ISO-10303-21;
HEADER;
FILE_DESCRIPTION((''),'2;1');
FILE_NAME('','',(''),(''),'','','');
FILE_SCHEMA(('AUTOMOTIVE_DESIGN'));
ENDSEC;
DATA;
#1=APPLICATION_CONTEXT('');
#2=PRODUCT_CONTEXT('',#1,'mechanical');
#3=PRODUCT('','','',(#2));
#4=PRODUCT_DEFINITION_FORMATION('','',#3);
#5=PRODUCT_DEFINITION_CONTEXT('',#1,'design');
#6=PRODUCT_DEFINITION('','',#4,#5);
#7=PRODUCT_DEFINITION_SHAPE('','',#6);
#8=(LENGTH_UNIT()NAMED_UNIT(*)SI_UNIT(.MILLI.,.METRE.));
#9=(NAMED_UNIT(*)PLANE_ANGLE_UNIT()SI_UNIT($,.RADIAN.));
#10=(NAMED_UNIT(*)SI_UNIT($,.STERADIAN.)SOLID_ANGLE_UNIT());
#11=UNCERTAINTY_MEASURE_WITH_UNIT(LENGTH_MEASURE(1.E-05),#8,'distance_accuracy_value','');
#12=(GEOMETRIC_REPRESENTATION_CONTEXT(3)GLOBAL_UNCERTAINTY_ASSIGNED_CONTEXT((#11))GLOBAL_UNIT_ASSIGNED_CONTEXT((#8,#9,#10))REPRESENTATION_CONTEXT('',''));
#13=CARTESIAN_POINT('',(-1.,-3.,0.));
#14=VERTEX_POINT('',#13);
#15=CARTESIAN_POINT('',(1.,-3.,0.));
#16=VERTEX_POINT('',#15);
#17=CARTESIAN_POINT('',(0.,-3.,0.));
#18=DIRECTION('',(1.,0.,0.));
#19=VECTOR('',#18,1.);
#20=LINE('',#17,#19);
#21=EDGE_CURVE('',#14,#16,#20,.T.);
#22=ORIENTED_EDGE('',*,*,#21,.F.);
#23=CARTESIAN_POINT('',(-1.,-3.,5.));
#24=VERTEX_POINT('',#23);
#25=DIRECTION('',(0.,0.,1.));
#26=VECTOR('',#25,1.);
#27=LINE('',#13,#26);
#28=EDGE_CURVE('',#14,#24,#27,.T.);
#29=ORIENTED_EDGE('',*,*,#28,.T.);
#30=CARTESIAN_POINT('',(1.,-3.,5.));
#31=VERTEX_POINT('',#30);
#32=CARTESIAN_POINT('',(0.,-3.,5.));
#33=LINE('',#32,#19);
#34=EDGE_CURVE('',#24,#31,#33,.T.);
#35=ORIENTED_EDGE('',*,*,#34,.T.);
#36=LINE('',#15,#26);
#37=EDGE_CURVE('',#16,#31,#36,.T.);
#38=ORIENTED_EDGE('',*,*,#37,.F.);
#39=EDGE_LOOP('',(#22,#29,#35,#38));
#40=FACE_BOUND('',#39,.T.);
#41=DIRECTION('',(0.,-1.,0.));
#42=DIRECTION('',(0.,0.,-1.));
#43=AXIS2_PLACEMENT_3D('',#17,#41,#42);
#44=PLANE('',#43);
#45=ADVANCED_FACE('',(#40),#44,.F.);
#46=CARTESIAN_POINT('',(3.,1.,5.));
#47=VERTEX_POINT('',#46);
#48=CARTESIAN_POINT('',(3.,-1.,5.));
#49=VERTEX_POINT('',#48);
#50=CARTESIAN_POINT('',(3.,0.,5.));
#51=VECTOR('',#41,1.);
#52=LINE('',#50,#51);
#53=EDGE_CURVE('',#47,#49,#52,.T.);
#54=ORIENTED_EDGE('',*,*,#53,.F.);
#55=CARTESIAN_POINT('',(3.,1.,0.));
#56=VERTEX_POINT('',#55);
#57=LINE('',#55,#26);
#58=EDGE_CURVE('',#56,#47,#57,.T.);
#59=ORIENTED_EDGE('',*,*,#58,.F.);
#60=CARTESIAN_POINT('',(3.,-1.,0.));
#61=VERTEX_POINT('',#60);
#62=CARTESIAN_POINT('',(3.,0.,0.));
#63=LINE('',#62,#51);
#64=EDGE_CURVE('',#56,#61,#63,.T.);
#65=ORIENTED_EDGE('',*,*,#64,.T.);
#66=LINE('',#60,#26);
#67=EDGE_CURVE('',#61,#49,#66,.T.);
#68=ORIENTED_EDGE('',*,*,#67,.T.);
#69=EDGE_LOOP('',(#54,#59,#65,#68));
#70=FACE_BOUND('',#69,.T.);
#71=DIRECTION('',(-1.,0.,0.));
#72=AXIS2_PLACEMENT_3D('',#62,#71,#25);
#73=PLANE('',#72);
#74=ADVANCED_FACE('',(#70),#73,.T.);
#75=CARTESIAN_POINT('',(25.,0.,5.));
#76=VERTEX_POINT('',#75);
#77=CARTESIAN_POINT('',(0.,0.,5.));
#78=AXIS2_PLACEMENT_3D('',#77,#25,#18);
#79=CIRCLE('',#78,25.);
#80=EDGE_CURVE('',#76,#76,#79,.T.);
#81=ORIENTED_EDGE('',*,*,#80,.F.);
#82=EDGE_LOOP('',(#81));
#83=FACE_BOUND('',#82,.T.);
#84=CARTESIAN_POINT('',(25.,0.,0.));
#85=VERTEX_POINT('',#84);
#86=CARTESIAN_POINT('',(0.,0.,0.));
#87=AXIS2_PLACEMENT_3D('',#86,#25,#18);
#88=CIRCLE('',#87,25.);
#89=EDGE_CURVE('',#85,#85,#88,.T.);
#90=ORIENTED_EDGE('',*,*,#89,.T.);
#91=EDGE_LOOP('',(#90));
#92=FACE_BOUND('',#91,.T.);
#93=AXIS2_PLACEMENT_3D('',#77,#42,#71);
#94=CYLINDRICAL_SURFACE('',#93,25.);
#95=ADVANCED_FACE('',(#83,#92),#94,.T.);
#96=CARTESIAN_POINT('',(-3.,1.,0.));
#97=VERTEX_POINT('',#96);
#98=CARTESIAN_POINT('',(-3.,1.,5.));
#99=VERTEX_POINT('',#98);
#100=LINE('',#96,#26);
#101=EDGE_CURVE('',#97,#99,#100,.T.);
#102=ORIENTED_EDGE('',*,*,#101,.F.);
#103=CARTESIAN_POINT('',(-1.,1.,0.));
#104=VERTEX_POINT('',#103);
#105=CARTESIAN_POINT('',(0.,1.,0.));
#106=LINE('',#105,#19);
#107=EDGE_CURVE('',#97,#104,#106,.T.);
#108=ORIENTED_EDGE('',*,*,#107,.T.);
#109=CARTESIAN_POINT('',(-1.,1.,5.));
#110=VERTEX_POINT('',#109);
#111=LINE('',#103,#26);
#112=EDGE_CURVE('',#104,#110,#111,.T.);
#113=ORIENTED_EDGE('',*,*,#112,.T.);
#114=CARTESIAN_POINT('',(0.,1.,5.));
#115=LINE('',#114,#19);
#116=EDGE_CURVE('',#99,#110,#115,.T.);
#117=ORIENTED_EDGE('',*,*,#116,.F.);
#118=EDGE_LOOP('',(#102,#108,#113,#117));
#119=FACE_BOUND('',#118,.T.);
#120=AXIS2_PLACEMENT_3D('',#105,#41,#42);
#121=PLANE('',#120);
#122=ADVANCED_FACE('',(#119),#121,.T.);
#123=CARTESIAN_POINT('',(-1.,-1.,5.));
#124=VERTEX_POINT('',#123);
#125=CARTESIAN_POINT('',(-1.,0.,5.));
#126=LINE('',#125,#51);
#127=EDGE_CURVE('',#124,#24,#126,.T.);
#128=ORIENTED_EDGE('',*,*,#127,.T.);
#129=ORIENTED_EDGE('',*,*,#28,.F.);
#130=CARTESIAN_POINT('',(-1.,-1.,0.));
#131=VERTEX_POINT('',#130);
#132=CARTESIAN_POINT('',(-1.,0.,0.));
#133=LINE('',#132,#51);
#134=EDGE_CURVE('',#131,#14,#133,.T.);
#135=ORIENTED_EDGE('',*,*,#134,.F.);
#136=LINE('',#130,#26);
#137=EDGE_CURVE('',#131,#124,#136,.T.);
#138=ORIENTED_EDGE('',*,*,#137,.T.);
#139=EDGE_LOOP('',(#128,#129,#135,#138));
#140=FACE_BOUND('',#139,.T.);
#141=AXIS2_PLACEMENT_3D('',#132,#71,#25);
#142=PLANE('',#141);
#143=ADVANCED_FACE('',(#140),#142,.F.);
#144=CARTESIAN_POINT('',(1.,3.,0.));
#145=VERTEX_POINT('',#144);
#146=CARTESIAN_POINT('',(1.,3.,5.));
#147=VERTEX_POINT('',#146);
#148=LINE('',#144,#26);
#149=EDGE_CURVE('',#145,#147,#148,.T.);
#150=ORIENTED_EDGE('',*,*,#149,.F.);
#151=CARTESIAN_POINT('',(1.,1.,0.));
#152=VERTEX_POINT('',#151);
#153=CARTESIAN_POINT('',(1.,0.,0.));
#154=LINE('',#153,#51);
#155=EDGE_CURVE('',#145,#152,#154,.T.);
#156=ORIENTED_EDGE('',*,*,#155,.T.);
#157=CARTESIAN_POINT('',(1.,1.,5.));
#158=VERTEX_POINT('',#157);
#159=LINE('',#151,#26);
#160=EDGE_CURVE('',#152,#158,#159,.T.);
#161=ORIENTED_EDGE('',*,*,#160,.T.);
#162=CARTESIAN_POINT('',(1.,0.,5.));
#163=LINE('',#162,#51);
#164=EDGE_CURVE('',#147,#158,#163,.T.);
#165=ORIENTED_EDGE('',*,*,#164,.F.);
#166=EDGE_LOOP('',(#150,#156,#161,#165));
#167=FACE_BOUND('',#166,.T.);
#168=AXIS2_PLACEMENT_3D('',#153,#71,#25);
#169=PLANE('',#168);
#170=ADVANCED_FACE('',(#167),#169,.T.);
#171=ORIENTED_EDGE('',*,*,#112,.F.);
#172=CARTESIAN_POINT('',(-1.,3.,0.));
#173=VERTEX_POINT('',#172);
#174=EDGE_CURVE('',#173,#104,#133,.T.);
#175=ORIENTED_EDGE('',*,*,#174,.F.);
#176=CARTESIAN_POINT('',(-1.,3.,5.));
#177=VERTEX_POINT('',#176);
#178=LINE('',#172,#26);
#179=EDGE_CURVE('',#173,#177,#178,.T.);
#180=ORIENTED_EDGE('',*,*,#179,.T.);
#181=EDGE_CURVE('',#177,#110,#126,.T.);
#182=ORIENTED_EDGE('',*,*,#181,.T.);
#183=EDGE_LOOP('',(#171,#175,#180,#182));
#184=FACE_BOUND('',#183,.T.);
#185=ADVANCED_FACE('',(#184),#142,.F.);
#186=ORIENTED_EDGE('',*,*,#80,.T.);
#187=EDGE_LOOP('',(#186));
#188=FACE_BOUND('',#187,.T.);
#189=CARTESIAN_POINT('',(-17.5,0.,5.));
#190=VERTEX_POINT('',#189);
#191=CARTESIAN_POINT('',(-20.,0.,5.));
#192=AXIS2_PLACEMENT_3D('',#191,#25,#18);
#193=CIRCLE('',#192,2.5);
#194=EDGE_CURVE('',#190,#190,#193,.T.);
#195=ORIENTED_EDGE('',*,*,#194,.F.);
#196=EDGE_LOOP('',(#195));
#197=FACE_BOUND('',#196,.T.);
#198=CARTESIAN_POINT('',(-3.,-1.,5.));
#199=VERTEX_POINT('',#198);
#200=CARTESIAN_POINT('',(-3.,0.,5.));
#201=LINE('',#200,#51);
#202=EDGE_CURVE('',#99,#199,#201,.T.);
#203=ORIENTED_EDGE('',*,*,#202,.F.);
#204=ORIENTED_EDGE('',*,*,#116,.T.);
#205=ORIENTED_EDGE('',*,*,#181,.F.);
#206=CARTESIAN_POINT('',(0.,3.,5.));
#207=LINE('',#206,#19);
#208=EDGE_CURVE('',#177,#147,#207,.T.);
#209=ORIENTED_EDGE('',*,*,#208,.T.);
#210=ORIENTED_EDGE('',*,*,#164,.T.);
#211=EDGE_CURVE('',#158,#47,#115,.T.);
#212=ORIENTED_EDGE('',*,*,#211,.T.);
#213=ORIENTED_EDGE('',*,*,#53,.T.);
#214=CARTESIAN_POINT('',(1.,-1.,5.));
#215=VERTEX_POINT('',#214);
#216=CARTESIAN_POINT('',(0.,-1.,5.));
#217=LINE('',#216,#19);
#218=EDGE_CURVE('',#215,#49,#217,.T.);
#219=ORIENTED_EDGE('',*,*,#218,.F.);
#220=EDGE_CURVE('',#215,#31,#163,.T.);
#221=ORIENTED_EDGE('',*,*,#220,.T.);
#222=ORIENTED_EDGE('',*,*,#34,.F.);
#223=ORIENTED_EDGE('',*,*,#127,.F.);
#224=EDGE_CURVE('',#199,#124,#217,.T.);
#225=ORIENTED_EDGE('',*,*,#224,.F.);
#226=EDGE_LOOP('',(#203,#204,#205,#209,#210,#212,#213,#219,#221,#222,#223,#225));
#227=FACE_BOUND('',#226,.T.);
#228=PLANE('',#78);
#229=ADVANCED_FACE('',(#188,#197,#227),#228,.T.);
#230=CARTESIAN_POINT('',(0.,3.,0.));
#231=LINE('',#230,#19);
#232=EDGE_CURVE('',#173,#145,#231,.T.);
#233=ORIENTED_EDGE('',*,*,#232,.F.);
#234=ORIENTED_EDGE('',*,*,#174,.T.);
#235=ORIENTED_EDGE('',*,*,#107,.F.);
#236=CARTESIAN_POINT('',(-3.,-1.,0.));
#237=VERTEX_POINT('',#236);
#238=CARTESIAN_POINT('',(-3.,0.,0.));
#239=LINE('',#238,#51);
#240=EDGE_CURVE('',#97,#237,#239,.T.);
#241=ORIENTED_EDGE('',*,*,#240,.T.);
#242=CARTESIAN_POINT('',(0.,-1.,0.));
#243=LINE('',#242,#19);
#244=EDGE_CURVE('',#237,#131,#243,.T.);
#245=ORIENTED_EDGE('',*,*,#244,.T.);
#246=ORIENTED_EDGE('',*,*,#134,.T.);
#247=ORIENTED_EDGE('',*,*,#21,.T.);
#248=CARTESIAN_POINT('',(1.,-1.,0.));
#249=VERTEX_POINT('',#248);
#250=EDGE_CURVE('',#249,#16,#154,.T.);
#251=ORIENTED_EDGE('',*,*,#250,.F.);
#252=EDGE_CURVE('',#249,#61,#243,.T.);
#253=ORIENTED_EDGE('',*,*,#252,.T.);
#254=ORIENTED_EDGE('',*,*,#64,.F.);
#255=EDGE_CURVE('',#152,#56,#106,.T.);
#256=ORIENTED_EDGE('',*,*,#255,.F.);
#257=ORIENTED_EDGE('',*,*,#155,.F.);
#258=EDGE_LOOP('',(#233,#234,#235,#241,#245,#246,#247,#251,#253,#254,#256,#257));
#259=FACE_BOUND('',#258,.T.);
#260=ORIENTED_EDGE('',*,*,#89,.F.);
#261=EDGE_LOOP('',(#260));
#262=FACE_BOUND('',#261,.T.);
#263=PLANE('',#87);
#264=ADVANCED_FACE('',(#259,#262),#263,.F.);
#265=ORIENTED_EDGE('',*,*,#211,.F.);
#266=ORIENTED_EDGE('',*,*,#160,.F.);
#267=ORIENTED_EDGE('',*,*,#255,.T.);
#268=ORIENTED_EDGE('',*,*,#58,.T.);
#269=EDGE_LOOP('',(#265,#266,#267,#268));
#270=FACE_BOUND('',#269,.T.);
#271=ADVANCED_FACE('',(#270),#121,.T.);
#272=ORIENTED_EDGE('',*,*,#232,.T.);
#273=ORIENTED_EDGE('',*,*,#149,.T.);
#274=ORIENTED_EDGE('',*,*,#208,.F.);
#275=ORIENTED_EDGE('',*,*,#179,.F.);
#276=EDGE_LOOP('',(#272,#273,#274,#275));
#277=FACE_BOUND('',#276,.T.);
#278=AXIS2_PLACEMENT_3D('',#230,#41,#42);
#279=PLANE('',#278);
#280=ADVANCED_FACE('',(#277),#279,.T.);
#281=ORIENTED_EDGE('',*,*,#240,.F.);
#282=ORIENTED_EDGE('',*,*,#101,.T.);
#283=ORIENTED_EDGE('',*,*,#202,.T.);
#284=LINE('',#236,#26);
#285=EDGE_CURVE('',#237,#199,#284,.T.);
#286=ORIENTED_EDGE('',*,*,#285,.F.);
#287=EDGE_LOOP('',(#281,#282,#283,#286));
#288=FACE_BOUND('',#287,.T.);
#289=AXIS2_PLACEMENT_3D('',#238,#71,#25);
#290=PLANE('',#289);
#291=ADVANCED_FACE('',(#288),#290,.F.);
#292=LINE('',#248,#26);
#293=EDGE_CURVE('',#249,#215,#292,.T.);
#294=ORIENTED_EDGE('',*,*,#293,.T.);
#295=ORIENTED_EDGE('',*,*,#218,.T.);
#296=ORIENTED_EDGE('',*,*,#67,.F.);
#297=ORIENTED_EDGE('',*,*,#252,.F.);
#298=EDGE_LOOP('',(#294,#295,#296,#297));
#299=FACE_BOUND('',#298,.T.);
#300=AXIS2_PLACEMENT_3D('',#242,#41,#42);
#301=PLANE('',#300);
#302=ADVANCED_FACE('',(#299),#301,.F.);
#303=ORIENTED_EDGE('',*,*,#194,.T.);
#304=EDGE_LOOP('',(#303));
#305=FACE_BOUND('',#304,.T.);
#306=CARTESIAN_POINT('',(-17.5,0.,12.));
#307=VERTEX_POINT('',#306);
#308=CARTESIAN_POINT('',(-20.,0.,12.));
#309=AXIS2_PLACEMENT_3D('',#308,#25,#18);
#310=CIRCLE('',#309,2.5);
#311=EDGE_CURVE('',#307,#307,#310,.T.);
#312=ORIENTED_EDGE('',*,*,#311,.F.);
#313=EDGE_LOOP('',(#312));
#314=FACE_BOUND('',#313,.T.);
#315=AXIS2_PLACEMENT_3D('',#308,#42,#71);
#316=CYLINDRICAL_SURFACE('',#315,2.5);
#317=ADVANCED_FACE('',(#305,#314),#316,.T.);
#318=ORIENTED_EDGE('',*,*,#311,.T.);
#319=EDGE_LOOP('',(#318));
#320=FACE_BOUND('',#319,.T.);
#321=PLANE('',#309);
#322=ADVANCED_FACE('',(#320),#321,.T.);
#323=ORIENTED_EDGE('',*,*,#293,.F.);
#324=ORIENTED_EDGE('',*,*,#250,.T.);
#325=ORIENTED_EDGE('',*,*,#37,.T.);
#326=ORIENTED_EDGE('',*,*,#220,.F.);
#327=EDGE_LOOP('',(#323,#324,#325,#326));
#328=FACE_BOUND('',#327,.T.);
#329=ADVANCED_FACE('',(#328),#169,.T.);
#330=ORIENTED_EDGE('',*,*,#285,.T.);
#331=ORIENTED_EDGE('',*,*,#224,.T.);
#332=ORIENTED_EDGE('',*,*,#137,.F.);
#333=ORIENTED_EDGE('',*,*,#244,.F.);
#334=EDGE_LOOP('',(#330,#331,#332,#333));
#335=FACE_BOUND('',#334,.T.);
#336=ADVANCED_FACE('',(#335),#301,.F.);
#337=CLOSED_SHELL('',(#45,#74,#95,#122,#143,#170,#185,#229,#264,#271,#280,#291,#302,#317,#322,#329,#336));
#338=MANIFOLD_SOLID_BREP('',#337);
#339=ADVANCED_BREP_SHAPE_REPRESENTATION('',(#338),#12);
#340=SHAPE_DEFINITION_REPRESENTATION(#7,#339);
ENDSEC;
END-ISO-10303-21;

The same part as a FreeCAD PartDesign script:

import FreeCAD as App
import Part
import Sketcher
Q = App.Units.Quantity

doc = App.newDocument("Part")
body = doc.addObject("PartDesign::Body", "Body")

# Sketch on XY plane
sketch1 = body.newObject("Sketcher::SketchObject", "Sketch")
sketch1.AttachmentSupport = (doc.getObject("XY_Plane"), [""])
sketch1.MapMode = "FlatFace"
sketch1.addGeometry(Part.Circle(App.Vector(0, 0, 0), App.Vector(0, 0, 1), 25), False)
sketch1.addConstraint([
    Sketcher.Constraint("Coincident", 0, 3, -1, 1),
    Sketcher.Constraint("Diameter", 0, Q("50 mm")),
])
pad1 = body.newObject("PartDesign::Pad", "Pad")
pad1.Profile = sketch1
pad1.Length = 5

# Sketch on XY plane
sketch2 = body.newObject("Sketcher::SketchObject", "Sketch001")
sketch2.AttachmentSupport = (doc.getObject("XY_Plane"), [""])
sketch2.MapMode = "FlatFace"
sketch2.AttachmentOffset = App.Placement(App.Vector(0, 0, 5), App.Rotation())
sketch2.addGeometry(Part.Circle(App.Vector(-20, 0, 0), App.Vector(0, 0, 1), 2.5), False)
sketch2.addConstraint([
    Sketcher.Constraint("PointOnObject", 0, 3, -1),
    Sketcher.Constraint("Diameter", 0, Q("5 mm")),
    Sketcher.Constraint("DistanceX", 0, 3, -1, 1, Q("20 mm")),
])
pad2 = body.newObject("PartDesign::Pad", "Pad001")
pad2.Profile = sketch2
pad2.Length = 7

# Sketch on XY plane
sketch3 = body.newObject("Sketcher::SketchObject", "Sketch002")
sketch3.AttachmentSupport = (doc.getObject("XY_Plane"), [""])
sketch3.MapMode = "FlatFace"
sketch3.AttachmentOffset = App.Placement(App.Vector(0, 0, 5), App.Rotation())
sketch3.addGeometry([
    Part.LineSegment(App.Vector(-1, 3, 0), App.Vector(-1, 1, 0)),  # 0
    Part.LineSegment(App.Vector(-1, 1, 0), App.Vector(-3, 1, 0)),  # 1
    Part.LineSegment(App.Vector(-3, 1, 0), App.Vector(-3, -1, 0)),  # 2
    Part.LineSegment(App.Vector(-3, -1, 0), App.Vector(-1, -1, 0)),  # 3
    Part.LineSegment(App.Vector(-1, -1, 0), App.Vector(-1, -3, 0)),  # 4
    Part.LineSegment(App.Vector(-1, -3, 0), App.Vector(1, -3, 0)),  # 5
    Part.LineSegment(App.Vector(1, -3, 0), App.Vector(1, -1, 0)),  # 6
    Part.LineSegment(App.Vector(1, -1, 0), App.Vector(3, -1, 0)),  # 7
    Part.LineSegment(App.Vector(3, -1, 0), App.Vector(3, 1, 0)),  # 8
    Part.LineSegment(App.Vector(3, 1, 0), App.Vector(1, 1, 0)),  # 9
    Part.LineSegment(App.Vector(1, 1, 0), App.Vector(1, 3, 0)),  # 10
    Part.LineSegment(App.Vector(1, 3, 0), App.Vector(-1, 3, 0)),  # 11
], False)
sketch3.addConstraint([
    Sketcher.Constraint("Coincident", 0, 2, 1, 1),
    Sketcher.Constraint("Coincident", 1, 2, 2, 1),
    Sketcher.Constraint("Coincident", 2, 2, 3, 1),
    Sketcher.Constraint("Coincident", 3, 2, 4, 1),
    Sketcher.Constraint("Coincident", 4, 2, 5, 1),
    Sketcher.Constraint("Coincident", 5, 2, 6, 1),
    Sketcher.Constraint("Coincident", 6, 2, 7, 1),
    Sketcher.Constraint("Coincident", 7, 2, 8, 1),
    Sketcher.Constraint("Coincident", 8, 2, 9, 1),
    Sketcher.Constraint("Coincident", 9, 2, 10, 1),
    Sketcher.Constraint("Coincident", 10, 2, 11, 1),
    Sketcher.Constraint("Coincident", 11, 2, 0, 1),
    Sketcher.Constraint("Vertical", 0),
    Sketcher.Constraint("Horizontal", 1),
    Sketcher.Constraint("Vertical", 2),
    Sketcher.Constraint("Horizontal", 3),
    Sketcher.Constraint("Vertical", 4),
    Sketcher.Constraint("Horizontal", 5),
    Sketcher.Constraint("Vertical", 6),
    Sketcher.Constraint("Horizontal", 7),
    Sketcher.Constraint("Vertical", 8),
    Sketcher.Constraint("Horizontal", 9),
    Sketcher.Constraint("Vertical", 10),
    Sketcher.Constraint("Horizontal", 11),
    Sketcher.Constraint("Symmetric", 0, 2, 6, 2, -1, 1),
    Sketcher.Constraint("Symmetric", 2, 2, 8, 2, -1, 1),
    Sketcher.Constraint("Symmetric", 4, 2, 10, 2, -1, 1),
    Sketcher.Constraint("Symmetric", 3, 2, 6, 2, -2),
    Sketcher.Constraint("Equal", 3, 5),
    Sketcher.Constraint("Equal", 11, 0),
    Sketcher.Constraint("Equal", 0, 2),
    Sketcher.Constraint("DistanceX", 1, 2, 1, 1, Q("2 mm")),
])
pocket1 = body.newObject("PartDesign::Pocket", "Pocket")
pocket1.Profile = sketch3
pocket1.Type = "ThroughAll"

doc.recompute()
